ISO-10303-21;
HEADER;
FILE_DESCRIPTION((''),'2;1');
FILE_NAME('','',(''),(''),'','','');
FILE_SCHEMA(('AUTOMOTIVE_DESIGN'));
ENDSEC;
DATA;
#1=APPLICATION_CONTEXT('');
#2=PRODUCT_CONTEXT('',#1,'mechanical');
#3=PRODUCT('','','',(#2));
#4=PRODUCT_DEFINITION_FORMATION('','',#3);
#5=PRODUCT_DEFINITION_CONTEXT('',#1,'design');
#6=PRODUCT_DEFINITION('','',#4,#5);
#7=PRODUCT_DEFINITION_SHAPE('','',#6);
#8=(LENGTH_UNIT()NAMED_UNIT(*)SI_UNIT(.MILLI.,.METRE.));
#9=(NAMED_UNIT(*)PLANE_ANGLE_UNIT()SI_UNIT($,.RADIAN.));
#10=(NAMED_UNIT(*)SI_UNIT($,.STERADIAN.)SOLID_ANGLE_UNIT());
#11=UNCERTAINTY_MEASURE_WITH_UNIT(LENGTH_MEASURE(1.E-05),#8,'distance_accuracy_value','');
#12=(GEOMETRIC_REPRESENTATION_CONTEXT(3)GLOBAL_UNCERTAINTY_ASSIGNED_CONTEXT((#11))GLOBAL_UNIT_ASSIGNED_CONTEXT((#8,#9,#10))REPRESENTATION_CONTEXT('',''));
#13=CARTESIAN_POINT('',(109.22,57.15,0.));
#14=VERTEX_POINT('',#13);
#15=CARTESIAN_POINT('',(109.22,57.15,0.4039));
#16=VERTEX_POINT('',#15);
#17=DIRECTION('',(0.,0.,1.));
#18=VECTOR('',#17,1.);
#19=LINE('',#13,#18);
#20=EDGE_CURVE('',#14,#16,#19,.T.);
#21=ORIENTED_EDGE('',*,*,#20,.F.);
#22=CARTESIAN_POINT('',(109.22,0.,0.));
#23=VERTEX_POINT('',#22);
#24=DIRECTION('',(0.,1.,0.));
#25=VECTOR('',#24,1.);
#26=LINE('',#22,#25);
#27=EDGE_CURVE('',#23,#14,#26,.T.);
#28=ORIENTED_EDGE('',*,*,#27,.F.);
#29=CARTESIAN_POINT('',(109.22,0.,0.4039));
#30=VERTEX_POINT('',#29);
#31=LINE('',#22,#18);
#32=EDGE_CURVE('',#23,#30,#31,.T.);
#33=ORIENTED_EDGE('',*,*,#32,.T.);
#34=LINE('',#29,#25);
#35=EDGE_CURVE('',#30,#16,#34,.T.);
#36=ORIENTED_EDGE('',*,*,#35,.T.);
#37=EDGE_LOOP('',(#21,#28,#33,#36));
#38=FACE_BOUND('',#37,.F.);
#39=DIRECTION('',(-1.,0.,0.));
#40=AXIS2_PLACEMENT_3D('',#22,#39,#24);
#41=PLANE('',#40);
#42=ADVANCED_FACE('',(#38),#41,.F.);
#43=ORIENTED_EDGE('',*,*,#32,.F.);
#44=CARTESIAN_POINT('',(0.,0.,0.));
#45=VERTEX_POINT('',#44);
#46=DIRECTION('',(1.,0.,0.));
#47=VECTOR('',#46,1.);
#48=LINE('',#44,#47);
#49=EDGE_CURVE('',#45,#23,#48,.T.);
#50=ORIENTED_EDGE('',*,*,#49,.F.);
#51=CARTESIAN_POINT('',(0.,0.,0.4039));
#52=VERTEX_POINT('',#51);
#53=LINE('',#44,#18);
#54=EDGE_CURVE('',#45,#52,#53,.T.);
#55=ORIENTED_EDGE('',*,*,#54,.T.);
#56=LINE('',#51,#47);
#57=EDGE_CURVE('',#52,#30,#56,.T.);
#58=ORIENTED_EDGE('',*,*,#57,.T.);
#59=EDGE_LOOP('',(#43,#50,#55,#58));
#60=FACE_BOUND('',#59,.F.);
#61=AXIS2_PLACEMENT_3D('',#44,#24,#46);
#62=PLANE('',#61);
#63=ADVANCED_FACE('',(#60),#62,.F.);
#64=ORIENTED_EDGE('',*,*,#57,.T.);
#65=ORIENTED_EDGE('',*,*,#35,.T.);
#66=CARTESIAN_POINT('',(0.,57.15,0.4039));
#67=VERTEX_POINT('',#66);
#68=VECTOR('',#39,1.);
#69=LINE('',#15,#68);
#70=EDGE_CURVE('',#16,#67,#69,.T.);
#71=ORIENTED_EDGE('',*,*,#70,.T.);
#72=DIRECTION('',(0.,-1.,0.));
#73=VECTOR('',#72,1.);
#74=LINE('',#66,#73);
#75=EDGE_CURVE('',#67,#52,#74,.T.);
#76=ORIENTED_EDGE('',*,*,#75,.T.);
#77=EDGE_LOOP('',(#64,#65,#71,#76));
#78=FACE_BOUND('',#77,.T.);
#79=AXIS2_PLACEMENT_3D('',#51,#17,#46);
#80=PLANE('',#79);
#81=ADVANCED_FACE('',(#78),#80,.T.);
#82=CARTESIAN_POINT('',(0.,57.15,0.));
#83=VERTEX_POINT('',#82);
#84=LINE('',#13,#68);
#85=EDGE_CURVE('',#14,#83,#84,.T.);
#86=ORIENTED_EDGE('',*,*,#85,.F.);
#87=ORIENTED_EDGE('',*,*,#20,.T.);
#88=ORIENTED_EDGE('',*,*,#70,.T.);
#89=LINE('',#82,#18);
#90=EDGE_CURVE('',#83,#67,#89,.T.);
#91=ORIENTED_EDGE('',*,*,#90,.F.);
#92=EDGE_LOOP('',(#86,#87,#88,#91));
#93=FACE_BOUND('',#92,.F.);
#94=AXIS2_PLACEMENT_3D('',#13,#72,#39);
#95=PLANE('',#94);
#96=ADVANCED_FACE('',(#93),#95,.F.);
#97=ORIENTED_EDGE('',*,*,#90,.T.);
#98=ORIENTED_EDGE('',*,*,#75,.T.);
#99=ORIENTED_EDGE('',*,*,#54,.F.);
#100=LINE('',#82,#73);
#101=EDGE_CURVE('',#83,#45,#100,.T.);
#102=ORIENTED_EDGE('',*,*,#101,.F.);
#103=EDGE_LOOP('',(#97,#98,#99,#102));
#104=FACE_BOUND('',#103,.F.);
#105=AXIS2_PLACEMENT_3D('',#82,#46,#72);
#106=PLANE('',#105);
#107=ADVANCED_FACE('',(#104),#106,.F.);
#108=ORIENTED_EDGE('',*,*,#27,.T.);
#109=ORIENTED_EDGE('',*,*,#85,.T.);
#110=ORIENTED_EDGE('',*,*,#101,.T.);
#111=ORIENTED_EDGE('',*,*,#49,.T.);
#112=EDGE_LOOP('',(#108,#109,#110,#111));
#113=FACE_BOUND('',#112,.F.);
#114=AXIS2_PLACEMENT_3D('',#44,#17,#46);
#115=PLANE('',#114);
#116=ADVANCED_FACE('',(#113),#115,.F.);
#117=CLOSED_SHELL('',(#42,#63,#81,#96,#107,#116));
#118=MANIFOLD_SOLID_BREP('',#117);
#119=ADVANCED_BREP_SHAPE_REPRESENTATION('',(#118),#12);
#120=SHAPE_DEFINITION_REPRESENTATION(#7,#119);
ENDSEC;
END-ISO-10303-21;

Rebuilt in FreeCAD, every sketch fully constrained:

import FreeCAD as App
import Part
import Sketcher
from FreeCAD import Vector
Q = App.Units.Quantity

doc = App.newDocument("Part")
body = doc.addObject("PartDesign::Body", "Body")

sketch1 = body.newObject("Sketcher::SketchObject", "Sketch")
sketch1.AttachmentSupport = (doc.getObject("XY_Plane"), [""])
sketch1.MapMode = "FlatFace"
sketch1.addGeometry(Part.LineSegment(Vector(0, 57, 0), Vector(0, 0, 0)), False)
sketch1.addGeometry(Part.LineSegment(Vector(0, 0, 0), Vector(109, 0, 0)), False)
sketch1.addGeometry(Part.LineSegment(Vector(109, 0, 0), Vector(109, 57, 0)), False)
sketch1.addGeometry(Part.LineSegment(Vector(109, 57, 0), Vector(0, 57, 0)), False)
sketch1.addConstraint(Sketcher.Constraint("Coincident", 0, 2, 1, 1))
sketch1.addConstraint(Sketcher.Constraint("Coincident", 1, 2, 2, 1))
sketch1.addConstraint(Sketcher.Constraint("Coincident", 2, 2, 3, 1))
sketch1.addConstraint(Sketcher.Constraint("Coincident", 3, 2, 0, 1))
sketch1.addConstraint(Sketcher.Constraint("Vertical", 0))
sketch1.addConstraint(Sketcher.Constraint("Horizontal", 1))
sketch1.addConstraint(Sketcher.Constraint("Vertical", 2))
sketch1.addConstraint(Sketcher.Constraint("Horizontal", 3))
sketch1.addConstraint(Sketcher.Constraint("Coincident", 0, 2, -1, 1))
sketch1.addConstraint(Sketcher.Constraint("DistanceX", 1, 1, 1, 2, Q("4.3 in")))
sketch1.addConstraint(Sketcher.Constraint("DistanceY", 0, 2, 0, 1, Q("2.25 in")))
pad1 = body.newObject("PartDesign::Pad", "Pad")
pad1.Profile = sketch1
pad1.Length = Q("0.0159016 in")

doc.recompute()
